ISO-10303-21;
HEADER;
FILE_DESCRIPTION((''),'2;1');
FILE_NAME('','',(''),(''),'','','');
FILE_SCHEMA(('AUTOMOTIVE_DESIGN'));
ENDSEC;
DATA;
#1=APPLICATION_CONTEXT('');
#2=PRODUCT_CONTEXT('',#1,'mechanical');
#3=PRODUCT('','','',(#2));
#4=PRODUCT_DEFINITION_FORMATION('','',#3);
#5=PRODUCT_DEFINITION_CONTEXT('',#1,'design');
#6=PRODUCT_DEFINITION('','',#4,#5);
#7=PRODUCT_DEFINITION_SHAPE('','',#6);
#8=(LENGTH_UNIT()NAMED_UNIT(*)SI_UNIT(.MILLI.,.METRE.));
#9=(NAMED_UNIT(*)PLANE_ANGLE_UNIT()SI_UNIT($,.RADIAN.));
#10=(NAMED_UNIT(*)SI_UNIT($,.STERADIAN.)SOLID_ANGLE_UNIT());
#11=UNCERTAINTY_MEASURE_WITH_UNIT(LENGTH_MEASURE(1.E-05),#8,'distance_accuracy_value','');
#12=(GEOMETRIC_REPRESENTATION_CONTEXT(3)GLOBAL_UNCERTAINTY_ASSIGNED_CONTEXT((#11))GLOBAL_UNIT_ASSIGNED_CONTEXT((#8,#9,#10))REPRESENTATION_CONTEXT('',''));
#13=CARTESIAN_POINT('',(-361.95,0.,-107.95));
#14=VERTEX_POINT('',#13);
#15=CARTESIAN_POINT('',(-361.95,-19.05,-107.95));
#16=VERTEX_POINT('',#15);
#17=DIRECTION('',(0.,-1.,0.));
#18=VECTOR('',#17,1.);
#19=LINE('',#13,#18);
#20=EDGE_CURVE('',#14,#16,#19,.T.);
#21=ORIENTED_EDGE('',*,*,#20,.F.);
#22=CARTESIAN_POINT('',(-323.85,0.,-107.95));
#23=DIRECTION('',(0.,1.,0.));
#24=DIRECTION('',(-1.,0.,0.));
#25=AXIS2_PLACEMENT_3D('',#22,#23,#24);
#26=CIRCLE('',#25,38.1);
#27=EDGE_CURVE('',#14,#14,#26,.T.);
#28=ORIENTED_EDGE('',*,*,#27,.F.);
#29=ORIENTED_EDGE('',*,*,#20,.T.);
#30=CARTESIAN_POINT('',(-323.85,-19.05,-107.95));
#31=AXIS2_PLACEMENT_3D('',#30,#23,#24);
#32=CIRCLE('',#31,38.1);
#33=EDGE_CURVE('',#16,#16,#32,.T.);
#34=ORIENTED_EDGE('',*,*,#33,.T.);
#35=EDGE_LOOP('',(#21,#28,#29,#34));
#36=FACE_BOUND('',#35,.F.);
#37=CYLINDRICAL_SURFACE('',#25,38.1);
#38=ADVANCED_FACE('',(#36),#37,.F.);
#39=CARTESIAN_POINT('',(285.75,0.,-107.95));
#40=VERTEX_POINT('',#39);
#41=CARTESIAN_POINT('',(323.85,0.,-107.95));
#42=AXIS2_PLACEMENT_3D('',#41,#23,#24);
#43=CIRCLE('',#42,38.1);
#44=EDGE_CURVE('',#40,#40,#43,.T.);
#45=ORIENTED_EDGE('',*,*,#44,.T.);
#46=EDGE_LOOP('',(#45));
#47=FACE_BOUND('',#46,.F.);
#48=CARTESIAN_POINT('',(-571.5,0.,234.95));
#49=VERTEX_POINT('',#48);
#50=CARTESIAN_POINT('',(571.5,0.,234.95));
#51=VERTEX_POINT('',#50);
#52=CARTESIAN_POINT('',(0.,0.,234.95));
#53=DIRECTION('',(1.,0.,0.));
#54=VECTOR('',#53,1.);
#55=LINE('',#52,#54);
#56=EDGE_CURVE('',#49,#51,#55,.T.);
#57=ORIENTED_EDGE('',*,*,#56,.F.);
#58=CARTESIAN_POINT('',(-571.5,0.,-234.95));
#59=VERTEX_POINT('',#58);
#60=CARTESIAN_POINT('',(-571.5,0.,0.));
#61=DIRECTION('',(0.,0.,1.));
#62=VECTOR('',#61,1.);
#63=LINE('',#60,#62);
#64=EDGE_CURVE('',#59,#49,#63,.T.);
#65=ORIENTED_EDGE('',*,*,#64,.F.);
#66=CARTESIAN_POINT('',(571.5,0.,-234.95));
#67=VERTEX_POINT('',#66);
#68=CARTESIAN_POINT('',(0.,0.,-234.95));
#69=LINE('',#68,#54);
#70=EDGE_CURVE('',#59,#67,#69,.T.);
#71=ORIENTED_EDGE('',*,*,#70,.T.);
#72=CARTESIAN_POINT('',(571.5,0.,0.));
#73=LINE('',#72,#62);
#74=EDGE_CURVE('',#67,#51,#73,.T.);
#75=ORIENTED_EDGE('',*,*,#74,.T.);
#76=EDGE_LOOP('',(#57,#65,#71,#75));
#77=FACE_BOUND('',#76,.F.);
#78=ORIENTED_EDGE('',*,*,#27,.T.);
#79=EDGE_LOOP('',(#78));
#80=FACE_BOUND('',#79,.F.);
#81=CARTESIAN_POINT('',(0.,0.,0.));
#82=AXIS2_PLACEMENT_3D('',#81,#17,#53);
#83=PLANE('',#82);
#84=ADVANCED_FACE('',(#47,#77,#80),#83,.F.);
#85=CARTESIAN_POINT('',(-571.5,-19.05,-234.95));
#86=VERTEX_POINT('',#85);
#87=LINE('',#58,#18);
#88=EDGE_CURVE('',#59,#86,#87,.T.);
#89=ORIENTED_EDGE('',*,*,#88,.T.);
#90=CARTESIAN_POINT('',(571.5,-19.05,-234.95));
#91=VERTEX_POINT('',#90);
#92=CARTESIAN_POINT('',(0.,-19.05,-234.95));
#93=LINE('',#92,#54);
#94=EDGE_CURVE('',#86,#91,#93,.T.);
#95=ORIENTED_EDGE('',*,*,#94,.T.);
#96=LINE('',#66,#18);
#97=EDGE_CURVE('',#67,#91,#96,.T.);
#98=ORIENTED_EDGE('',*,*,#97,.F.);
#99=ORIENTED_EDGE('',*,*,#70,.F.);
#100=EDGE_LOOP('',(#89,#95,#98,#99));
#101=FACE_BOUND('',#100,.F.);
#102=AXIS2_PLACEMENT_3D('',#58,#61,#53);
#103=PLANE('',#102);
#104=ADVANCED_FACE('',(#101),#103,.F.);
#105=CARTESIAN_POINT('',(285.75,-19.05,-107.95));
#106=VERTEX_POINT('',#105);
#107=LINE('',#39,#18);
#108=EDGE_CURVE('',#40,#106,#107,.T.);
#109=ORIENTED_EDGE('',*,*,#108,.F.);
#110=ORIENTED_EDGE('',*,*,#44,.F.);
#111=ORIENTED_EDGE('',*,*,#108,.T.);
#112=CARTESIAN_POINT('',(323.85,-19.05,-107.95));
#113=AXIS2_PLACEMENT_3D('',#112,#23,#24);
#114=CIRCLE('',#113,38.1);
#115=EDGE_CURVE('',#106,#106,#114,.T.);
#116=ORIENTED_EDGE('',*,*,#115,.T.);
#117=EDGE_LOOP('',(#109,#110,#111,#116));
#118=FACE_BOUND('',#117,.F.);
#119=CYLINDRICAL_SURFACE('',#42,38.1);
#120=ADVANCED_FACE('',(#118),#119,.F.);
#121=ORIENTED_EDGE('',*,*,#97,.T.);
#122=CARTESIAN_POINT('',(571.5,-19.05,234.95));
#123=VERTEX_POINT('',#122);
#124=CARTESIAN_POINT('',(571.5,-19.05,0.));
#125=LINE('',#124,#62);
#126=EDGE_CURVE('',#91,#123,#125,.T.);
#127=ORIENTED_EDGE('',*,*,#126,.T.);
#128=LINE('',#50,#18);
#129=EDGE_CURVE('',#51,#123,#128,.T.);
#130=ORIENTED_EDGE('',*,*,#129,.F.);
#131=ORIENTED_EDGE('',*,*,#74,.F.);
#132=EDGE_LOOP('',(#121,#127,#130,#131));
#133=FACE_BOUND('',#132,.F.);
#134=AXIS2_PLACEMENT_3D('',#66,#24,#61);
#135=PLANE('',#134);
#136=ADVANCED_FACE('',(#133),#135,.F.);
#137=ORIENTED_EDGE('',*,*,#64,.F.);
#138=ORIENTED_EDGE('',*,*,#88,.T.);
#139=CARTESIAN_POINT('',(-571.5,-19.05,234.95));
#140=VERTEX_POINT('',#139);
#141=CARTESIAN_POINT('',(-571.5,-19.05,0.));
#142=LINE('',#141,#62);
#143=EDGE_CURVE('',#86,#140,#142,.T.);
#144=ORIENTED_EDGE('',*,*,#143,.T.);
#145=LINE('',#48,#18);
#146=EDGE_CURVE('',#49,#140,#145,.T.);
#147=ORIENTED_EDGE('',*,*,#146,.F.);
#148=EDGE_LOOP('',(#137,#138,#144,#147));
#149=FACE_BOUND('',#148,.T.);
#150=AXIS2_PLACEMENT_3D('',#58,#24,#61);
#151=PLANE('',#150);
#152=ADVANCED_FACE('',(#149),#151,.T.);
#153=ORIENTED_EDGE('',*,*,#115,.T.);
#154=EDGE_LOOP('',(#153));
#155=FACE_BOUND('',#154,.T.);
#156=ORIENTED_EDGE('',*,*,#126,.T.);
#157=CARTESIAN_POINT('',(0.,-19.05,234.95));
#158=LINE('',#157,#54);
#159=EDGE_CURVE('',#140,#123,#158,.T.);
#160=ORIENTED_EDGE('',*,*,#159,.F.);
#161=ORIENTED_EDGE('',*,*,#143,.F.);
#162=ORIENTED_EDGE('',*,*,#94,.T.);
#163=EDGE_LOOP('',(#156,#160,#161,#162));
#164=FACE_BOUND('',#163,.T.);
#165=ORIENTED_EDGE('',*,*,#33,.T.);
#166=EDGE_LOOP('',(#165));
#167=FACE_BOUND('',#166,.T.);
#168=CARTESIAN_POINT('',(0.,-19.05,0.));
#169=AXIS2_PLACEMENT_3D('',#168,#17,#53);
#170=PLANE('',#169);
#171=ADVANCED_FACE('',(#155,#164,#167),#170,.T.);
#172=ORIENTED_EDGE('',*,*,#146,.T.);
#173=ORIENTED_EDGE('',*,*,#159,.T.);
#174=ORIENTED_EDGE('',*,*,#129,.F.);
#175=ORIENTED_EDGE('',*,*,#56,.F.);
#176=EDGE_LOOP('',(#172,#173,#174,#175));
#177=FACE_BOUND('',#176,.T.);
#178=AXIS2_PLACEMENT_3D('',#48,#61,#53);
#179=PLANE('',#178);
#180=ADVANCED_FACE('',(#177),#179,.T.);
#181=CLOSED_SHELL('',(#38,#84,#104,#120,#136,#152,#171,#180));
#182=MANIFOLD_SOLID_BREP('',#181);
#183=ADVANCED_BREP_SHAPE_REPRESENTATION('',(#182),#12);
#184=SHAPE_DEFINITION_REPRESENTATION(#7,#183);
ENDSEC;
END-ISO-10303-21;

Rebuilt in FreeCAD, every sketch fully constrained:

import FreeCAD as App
import Part
import Sketcher
Q = App.Units.Quantity

doc = App.newDocument("Part")
body = doc.addObject("PartDesign::Body", "Body")

# Sketch on XZ plane
sketch1 = body.newObject("Sketcher::SketchObject", "Sketch")
sketch1.AttachmentSupport = (doc.getObject("XZ_Plane"), [""])
sketch1.MapMode = "FlatFace"
sketch1.addGeometry(Part.LineSegment(App.Vector(-572, 235, 0), App.Vector(-572, -235, 0)), False)
sketch1.addGeometry(Part.LineSegment(App.Vector(-572, -235, 0), App.Vector(572, -235, 0)), False)
sketch1.addGeometry(Part.LineSegment(App.Vector(572, -235, 0), App.Vector(572, 235, 0)), False)
sketch1.addGeometry(Part.LineSegment(App.Vector(572, 235, 0), App.Vector(-572, 235, 0)), False)
sketch1.addConstraint(Sketcher.Constraint("Coincident", 0, 2, 1, 1))
sketch1.addConstraint(Sketcher.Constraint("Coincident", 1, 2, 2, 1))
sketch1.addConstraint(Sketcher.Constraint("Coincident", 2, 2, 3, 1))
sketch1.addConstraint(Sketcher.Constraint("Coincident", 3, 2, 0, 1))
sketch1.addConstraint(Sketcher.Constraint("Vertical", 0))
sketch1.addConstraint(Sketcher.Constraint("Horizontal", 1))
sketch1.addConstraint(Sketcher.Constraint("Vertical", 2))
sketch1.addConstraint(Sketcher.Constraint("Horizontal", 3))
sketch1.addConstraint(Sketcher.Constraint("Symmetric", 0, 2, 2, 2, -1, 1))
sketch1.addConstraint(Sketcher.Constraint("DistanceX", 1, 1, 1, 2, Q("45 in")))
sketch1.addConstraint(Sketcher.Constraint("DistanceY", 0, 2, 0, 1, Q("18.5 in")))
pad1 = body.newObject("PartDesign::Pad", "Pad")
pad1.Profile = sketch1
pad1.Length = Q("0.75 in")

# Sketch on XZ plane
sketch2 = body.newObject("Sketcher::SketchObject", "Sketch001")
sketch2.AttachmentSupport = (doc.getObject("XZ_Plane"), [""])
sketch2.MapMode = "FlatFace"
sketch2.addGeometry(Part.Circle(App.Vector(324, -108, 0), App.Vector(0, 0, 1), 38), False)
sketch2.addGeometry(Part.Circle(App.Vector(-324, -108, 0), App.Vector(0, 0, 1), 38), False)
sketch2.addConstraint(Sketcher.Constraint("Equal", 0, 1))
sketch2.addConstraint(Sketcher.Constraint("Symmetric", 0, 3, 1, 3, -2))
sketch2.addConstraint(Sketcher.Constraint("Diameter", 0, Q("3 in")))
sketch2.addConstraint(Sketcher.Constraint("DistanceX", 1, 3, 0, 3, Q("25.5 in")))
sketch2.addConstraint(Sketcher.Constraint("DistanceY", 0, 3, -1, 1, Q("4.25 in")))
pocket1 = body.newObject("PartDesign::Pocket", "Pocket")
pocket1.Profile = sketch2
pocket1.Type = "ThroughAll"
pocket1.Reversed = True

doc.recompute()
